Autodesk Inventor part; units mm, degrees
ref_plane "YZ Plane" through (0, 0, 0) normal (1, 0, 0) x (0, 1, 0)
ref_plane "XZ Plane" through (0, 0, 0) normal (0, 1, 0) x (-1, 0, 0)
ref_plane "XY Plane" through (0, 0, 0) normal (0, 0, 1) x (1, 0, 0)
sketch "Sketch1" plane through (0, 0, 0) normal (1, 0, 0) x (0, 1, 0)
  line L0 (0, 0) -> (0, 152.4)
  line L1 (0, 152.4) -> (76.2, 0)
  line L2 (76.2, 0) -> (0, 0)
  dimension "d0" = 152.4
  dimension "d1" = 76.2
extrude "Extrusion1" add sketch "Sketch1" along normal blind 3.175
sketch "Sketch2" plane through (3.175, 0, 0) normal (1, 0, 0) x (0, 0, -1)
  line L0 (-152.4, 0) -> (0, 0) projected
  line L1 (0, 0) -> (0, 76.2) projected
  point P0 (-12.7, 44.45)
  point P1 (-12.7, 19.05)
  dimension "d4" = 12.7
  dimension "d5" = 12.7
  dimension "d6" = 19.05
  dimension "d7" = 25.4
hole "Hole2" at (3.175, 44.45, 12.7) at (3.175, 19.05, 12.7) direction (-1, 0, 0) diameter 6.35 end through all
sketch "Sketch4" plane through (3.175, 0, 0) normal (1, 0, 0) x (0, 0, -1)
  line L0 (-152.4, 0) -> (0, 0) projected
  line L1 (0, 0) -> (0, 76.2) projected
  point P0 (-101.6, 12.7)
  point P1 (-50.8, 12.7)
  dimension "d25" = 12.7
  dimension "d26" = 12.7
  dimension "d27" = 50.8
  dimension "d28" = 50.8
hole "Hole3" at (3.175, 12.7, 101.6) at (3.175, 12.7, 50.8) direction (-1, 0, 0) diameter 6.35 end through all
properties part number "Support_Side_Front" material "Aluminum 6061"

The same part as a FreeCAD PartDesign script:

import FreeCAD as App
import Part
import Sketcher

V = App.Vector
Q = App.Units.Quantity

doc = App.newDocument("Part")
body = doc.addObject("PartDesign::Body", "Body")

sketch1 = body.newObject("Sketcher::SketchObject", "Sketch")
sketch1.AttachmentSupport = (doc.getObject("YZ_Plane"), [""])
sketch1.MapMode = "FlatFace"
sketch1.addGeometry([
    Part.LineSegment(V(0, 152, 0), V(0, 0, 0)),
    Part.LineSegment(V(0, 0, 0), V(76, 0, 0)),
    Part.LineSegment(V(76, 0, 0), V(0, 152, 0)),
], False)
sketch1.addConstraint([
    Sketcher.Constraint("Coincident", 0, 2, 1, 1),
    Sketcher.Constraint("Coincident", 1, 2, 2, 1),
    Sketcher.Constraint("Coincident", 2, 2, 0, 1),
    Sketcher.Constraint("Vertical", 0),
    Sketcher.Constraint("Horizontal", 1),
    Sketcher.Constraint("Coincident", 0, 2, -1, 1),
    Sketcher.Constraint("DistanceX", 1, 1, 1, 2, Q("3 in")),
    Sketcher.Constraint("DistanceY", 0, 2, 0, 1, Q("6 in")),
])
pad1 = body.newObject("PartDesign::Pad", "Pad")
pad1.Profile = sketch1
pad1.Length = Q("0.125 in")

sketch2 = body.newObject("Sketcher::SketchObject", "Sketch001")
sketch2.AttachmentSupport = (doc.getObject("YZ_Plane"), [""])
sketch2.MapMode = "FlatFace"
sketch2.AttachmentOffset = App.Placement(V(0, 0, 0.125 * 25.4), App.Rotation())
sketch2.addGeometry([
    Part.Circle(V(44.5, 12.7, 0), V(0, 0, 1), 3.2),
    Part.Circle(V(19.1, 12.7, 0), V(0, 0, 1), 3.2),
], False)
sketch2.addConstraint([
    Sketcher.Constraint("Equal", 0, 1),
    Sketcher.Constraint("Horizontal", 0, 3, 1, 3),
    Sketcher.Constraint("Diameter", 0, Q("0.25 in")),
    Sketcher.Constraint("DistanceX", 1, 3, 0, 3, Q("1 in")),
    Sketcher.Constraint("DistanceY", -1, 1, 0, 3, Q("0.5 in")),
    Sketcher.Constraint("DistanceX", -1, 1, 0, 3, Q("1.75 in")),
])
doc.recompute()
hole = body.newObject("PartDesign::Hole", "Hole")
hole.Profile = sketch2
hole.ThreadType = "None"
hole.Diameter = Q("0.25 in")
hole.DepthType = "ThroughAll"

sketch3 = body.newObject("Sketcher::SketchObject", "Sketch002")
sketch3.AttachmentSupport = (doc.getObject("YZ_Plane"), [""])
sketch3.MapMode = "FlatFace"
sketch3.AttachmentOffset = App.Placement(V(0, 0, 0.125 * 25.4), App.Rotation())
sketch3.addGeometry([
    Part.Circle(V(12.7, 101.6, 0), V(0, 0, 1), 3.2),
    Part.Circle(V(12.7, 50.8, 0), V(0, 0, 1), 3.2),
], False)
sketch3.addConstraint([
    Sketcher.Constraint("Equal", 0, 1),
    Sketcher.Constraint("Vertical", 0, 3, 1, 3),
    Sketcher.Constraint("Diameter", 0, Q("0.25 in")),
    Sketcher.Constraint("DistanceY", -1, 1, 0, 3, Q("4 in")),
    Sketcher.Constraint("DistanceY", -1, 1, 1, 3, Q("2 in")),
    Sketcher.Constraint("DistanceX", -1, 1, 0, 3, Q("0.5 in")),
])
doc.recompute()
hole2 = body.newObject("PartDesign::Hole", "Hole001")
hole2.Profile = sketch3
hole2.ThreadType = "None"
hole2.Diameter = Q("0.25 in")
hole2.DepthType = "ThroughAll"

doc.recompute()
